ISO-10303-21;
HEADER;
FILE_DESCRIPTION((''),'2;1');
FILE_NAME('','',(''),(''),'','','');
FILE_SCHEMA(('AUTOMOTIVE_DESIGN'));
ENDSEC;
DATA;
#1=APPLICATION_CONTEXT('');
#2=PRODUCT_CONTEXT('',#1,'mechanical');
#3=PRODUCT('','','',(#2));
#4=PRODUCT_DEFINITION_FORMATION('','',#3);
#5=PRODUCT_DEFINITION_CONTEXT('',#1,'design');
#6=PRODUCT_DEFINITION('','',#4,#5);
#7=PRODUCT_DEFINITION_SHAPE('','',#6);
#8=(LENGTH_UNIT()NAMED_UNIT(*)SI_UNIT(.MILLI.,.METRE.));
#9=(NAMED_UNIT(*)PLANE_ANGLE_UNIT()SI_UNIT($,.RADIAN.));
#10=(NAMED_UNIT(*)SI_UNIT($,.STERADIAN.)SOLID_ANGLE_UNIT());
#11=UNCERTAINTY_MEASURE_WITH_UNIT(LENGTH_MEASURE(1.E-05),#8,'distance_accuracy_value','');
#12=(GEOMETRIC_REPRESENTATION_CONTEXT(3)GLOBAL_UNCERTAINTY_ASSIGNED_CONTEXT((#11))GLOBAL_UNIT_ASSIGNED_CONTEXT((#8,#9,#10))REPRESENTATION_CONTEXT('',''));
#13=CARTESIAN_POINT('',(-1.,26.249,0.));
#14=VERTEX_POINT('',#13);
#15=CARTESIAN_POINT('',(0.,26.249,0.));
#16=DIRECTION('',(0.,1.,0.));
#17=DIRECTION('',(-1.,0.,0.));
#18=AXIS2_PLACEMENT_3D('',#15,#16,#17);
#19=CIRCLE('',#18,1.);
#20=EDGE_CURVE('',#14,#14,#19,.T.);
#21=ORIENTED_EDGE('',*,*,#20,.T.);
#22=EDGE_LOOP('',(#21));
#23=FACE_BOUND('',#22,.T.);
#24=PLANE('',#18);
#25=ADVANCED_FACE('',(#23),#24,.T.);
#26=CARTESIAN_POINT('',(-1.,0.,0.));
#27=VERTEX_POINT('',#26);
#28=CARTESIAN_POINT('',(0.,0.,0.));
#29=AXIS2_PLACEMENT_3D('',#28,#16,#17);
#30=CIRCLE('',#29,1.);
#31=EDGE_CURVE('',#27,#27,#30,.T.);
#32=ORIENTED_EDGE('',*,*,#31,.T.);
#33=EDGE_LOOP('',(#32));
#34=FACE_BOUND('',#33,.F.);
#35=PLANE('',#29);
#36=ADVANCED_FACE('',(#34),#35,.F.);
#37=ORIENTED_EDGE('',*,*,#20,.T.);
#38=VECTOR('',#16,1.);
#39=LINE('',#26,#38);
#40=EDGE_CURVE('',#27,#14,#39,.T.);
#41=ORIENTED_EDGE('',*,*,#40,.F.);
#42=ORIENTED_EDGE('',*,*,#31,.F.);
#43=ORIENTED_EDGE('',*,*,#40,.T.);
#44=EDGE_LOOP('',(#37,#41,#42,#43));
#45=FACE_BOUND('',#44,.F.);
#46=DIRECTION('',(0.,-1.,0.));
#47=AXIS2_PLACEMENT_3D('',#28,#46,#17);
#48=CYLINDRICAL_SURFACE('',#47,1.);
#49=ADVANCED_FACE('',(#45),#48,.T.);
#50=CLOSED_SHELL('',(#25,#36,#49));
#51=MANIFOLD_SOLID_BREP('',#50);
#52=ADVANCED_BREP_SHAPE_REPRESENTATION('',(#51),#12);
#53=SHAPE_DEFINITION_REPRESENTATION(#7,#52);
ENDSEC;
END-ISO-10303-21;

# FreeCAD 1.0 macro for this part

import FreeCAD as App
import Part
import Sketcher

V = App.Vector

doc = App.newDocument("Part")
body = doc.addObject("PartDesign::Body", "Body")

# Sketch on XZ plane
sketch1 = body.newObject("Sketcher::SketchObject", "Sketch")
sketch1.AttachmentSupport = (doc.getObject("XZ_Plane"), [""])
sketch1.MapMode = "FlatFace"
sketch1.addGeometry(Part.Circle(V(0, 0, 0), V(0, 0, 1), 1), False)
sketch1.addConstraint(Sketcher.Constraint("Coincident", 0, 3, -1, 1))
sketch1.addConstraint(Sketcher.Constraint("Diameter", 0, 2.0))
pad1 = body.newObject("PartDesign::Pad", "Pad")
pad1.Profile = sketch1
pad1.Length = 26.249
pad1.Reversed = True

doc.recompute()
